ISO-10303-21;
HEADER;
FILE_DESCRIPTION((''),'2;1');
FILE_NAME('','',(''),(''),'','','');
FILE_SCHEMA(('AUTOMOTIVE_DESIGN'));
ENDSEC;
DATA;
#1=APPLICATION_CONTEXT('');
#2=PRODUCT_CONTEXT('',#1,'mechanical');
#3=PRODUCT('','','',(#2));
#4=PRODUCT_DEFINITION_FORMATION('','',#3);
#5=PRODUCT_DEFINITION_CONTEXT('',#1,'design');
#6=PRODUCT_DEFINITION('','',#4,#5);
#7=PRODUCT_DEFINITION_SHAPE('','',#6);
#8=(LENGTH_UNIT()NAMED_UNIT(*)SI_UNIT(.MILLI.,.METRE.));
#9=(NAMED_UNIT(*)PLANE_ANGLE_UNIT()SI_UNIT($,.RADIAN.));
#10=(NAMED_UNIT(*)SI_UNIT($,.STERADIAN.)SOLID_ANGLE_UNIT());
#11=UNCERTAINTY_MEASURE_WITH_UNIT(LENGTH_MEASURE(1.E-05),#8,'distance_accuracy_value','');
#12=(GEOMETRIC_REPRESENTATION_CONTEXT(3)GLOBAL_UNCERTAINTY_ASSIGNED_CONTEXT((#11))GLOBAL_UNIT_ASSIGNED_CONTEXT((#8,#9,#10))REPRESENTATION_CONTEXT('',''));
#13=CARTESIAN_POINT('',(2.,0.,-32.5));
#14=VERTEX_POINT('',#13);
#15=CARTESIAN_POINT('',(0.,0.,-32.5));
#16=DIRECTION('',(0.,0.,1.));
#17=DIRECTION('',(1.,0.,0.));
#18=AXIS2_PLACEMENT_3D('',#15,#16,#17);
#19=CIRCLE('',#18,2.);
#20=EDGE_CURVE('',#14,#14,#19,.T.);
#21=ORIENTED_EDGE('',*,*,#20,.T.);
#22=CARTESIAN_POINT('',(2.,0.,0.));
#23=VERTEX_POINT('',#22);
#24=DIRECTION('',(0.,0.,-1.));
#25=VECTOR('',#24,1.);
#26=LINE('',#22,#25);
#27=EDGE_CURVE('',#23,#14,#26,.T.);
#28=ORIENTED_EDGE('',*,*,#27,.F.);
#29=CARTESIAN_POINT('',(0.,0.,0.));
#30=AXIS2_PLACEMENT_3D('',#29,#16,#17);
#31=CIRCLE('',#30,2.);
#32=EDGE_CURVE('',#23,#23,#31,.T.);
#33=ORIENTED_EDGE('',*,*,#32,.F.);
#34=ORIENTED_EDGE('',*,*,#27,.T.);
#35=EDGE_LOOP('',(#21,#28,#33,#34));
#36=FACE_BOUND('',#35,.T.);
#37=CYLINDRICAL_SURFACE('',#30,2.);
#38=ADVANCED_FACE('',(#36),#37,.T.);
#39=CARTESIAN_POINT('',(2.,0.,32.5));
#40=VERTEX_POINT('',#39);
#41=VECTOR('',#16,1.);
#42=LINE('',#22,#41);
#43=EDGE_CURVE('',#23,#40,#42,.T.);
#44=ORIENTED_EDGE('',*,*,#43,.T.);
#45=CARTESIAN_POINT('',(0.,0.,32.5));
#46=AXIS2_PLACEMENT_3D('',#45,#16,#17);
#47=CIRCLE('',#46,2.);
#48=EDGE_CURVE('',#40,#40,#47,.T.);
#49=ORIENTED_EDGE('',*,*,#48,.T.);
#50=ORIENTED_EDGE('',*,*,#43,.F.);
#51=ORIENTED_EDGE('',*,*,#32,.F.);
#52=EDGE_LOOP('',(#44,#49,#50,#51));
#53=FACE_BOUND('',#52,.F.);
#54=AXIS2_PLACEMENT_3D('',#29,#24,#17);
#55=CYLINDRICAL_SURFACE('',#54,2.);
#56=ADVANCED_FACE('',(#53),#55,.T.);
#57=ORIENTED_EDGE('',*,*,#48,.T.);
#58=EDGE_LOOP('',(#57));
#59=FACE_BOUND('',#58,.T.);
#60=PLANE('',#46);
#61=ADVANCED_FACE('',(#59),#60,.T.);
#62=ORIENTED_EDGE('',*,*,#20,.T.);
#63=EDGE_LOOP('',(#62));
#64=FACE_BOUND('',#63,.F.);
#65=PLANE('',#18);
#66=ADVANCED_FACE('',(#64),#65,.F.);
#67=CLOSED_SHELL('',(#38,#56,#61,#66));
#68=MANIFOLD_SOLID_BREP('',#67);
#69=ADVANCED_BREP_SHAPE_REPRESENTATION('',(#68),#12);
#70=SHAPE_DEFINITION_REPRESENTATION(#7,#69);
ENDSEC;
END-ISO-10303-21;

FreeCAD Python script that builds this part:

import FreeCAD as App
import Part
import Sketcher
Q = App.Units.Quantity

doc = App.newDocument("Part")
body = doc.addObject("PartDesign::Body", "Body")

sketch1 = body.newObject("Sketcher::SketchObject", "Sketch")
sketch1.AttachmentSupport = (doc.getObject("XY_Plane"), [""])
sketch1.MapMode = "FlatFace"
sketch1.addGeometry(Part.Circle(App.Vector(0, 0, 0), App.Vector(0, 0, 1), 2), False)
sketch1.addConstraint([
    Sketcher.Constraint("Coincident", 0, 3, -1, 1),
    Sketcher.Constraint("Diameter", 0, Q("4 mm")),
])
pad1 = body.newObject("PartDesign::Pad", "Pad")
pad1.Profile = sketch1
pad1.Length = 65
pad1.Midplane = True

doc.recompute()
